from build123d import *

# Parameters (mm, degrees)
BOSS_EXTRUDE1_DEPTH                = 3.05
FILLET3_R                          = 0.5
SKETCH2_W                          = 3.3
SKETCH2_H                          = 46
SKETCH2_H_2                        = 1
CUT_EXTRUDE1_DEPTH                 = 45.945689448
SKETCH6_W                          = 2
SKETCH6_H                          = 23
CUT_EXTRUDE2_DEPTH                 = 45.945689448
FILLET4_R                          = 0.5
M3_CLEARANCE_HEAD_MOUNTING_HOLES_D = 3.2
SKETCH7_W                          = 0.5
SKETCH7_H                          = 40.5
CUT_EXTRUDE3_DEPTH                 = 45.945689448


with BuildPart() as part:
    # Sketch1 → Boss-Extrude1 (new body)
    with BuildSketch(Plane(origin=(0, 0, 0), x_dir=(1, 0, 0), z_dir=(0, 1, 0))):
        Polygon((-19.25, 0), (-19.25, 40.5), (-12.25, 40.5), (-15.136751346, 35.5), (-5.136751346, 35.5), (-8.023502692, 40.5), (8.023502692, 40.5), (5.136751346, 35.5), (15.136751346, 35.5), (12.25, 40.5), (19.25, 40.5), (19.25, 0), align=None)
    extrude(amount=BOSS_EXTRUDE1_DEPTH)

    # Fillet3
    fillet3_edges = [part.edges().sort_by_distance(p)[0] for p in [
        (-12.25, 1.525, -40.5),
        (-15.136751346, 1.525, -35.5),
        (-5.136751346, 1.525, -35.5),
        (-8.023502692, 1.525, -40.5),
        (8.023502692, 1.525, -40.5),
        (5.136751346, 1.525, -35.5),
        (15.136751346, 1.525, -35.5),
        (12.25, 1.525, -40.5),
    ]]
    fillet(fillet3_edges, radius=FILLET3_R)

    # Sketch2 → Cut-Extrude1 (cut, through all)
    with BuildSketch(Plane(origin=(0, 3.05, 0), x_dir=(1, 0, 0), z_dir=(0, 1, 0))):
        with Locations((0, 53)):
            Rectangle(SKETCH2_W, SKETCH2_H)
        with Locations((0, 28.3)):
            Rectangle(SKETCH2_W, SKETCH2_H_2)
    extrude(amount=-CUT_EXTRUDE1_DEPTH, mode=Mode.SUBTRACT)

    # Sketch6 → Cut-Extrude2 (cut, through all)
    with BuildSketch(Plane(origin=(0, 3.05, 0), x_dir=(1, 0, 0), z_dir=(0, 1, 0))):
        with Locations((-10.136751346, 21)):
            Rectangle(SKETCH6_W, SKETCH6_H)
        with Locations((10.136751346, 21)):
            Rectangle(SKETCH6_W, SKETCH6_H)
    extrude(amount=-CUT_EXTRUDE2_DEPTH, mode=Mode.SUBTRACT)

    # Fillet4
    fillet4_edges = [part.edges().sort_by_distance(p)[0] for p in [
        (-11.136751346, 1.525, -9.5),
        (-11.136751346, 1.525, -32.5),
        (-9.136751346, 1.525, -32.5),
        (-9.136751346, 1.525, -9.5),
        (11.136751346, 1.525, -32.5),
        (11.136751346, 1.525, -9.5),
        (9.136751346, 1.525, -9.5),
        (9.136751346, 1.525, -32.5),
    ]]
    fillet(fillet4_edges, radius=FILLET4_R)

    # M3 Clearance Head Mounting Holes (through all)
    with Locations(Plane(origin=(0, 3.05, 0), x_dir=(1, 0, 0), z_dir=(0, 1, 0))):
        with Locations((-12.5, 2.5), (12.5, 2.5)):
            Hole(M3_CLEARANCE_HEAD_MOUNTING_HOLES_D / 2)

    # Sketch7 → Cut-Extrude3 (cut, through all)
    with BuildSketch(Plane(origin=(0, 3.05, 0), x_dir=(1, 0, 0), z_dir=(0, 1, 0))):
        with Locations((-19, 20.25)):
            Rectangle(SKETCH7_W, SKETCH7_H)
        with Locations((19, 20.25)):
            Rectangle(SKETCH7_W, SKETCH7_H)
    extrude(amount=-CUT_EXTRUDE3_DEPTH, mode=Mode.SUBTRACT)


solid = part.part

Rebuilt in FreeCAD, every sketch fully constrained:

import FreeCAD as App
import Part
import Sketcher
from FreeCAD import Vector
Q = App.Units.Quantity


def edges_at(feature, points):
    """Names of the edges that pass closest to the given points."""
    edges = feature.Shape.Edges
    near = lambda p: min(range(len(edges)), key=lambda i: edges[i].distToShape(Part.Vertex(*p))[0])
    return sorted({f"Edge{near(p) + 1}" for p in points})

doc = App.newDocument("Part")
params = doc.addObject("Spreadsheet::Sheet", "Params")
for row, (alias, value) in enumerate([
    ("sketch1_width", "7 mm"),
    ("sketch1_width2", "10 mm"),
    ("sketch1_width3", "38.5 mm"),
    ("sketch1_height", "40.5 mm"),
    ("pad1_length", "3.05 mm"),
    ("fillet_radius", "0.5 mm"),
    ("sketch2_height", "46 mm"),
    ("sketch2_height2", "1 mm"),
    ("sketch2_width", "3.3 mm"),
    ("sketch3_width", "2 mm"),
    ("sketch3_height", "23 mm"),
    ("fillet2_radius", "0.5 mm"),
    ("sketch4_diameter", "3.2 mm"),
    ("hole_diameter", "3.2 mm"),
    ("sketch5_width", "0.5 mm"),
    ("sketch5_height", "40.5 mm"),
], start=1):
    params.set(f"A{row}", alias)
    params.set(f"B{row}", "=" + value)
    params.setAlias(f"B{row}", alias)

body = doc.addObject("PartDesign::Body", "Body")

sketch1 = doc.addObject("Sketcher::SketchObject", "Sketch")
body.addObject(sketch1)
sketch1.AttachmentSupport = (doc.XZ_Plane, [""])
sketch1.MapMode = "FlatFace"
sketch1.addGeometry(Part.LineSegment(Vector(-19, -40, 0), Vector(-19, 0, 0)), False)
sketch1.addGeometry(Part.LineSegment(Vector(-19, 0, 0), Vector(19, 0, 0)), False)
sketch1.addGeometry(Part.LineSegment(Vector(19, 0, 0), Vector(19, -40, 0)), False)
sketch1.addGeometry(Part.LineSegment(Vector(19, -40, 0), Vector(12, -40, 0)), False)
sketch1.addGeometry(Part.LineSegment(Vector(12, -40, 0), Vector(15, -36, 0)), False)
sketch1.addGeometry(Part.LineSegment(Vector(15, -36, 0), Vector(5, -36, 0)), False)
sketch1.addGeometry(Part.LineSegment(Vector(5, -36, 0), Vector(8, -40, 0)), False)
sketch1.addGeometry(Part.LineSegment(Vector(8, -40, 0), Vector(-8, -40, 0)), False)
sketch1.addGeometry(Part.LineSegment(Vector(-8, -40, 0), Vector(-5, -36, 0)), False)
sketch1.addGeometry(Part.LineSegment(Vector(-5, -36, 0), Vector(-15, -36, 0)), False)
sketch1.addGeometry(Part.LineSegment(Vector(-15, -36, 0), Vector(-12, -40, 0)), False)
sketch1.addGeometry(Part.LineSegment(Vector(-12, -40, 0), Vector(-19, -40, 0)), False)
sketch1.addConstraint(Sketcher.Constraint("Coincident", 0, 2, 1, 1))
sketch1.addConstraint(Sketcher.Constraint("Coincident", 1, 2, 2, 1))
sketch1.addConstraint(Sketcher.Constraint("Coincident", 2, 2, 3, 1))
sketch1.addConstraint(Sketcher.Constraint("Coincident", 3, 2, 4, 1))
sketch1.addConstraint(Sketcher.Constraint("Coincident", 4, 2, 5, 1))
sketch1.addConstraint(Sketcher.Constraint("Coincident", 5, 2, 6, 1))
sketch1.addConstraint(Sketcher.Constraint("Coincident", 6, 2, 7, 1))
sketch1.addConstraint(Sketcher.Constraint("Coincident", 7, 2, 8, 1))
sketch1.addConstraint(Sketcher.Constraint("Coincident", 8, 2, 9, 1))
sketch1.addConstraint(Sketcher.Constraint("Coincident", 9, 2, 10, 1))
sketch1.addConstraint(Sketcher.Constraint("Coincident", 10, 2, 11, 1))
sketch1.addConstraint(Sketcher.Constraint("Coincident", 11, 2, 0, 1))
sketch1.addConstraint(Sketcher.Constraint("Vertical", 0))
sketch1.addConstraint(Sketcher.Constraint("Horizontal", 1))
sketch1.addConstraint(Sketcher.Constraint("Vertical", 2))
sketch1.addConstraint(Sketcher.Constraint("Horizontal", 3))
sketch1.addConstraint(Sketcher.Constraint("Horizontal", 5))
sketch1.addConstraint(Sketcher.Constraint("Horizontal", 7))
sketch1.addConstraint(Sketcher.Constraint("Horizontal", 9))
sketch1.addConstraint(Sketcher.Constraint("Horizontal", 11))
sketch1.addConstraint(Sketcher.Constraint("Symmetric", 0, 2, 1, 2, -1, 1))
sketch1.addConstraint(Sketcher.Constraint("Symmetric", 5, 2, 8, 2, -2))
sketch1.addConstraint(Sketcher.Constraint("Symmetric", 3, 2, 10, 2, -2))
sketch1.addConstraint(Sketcher.Constraint("Parallel", 4, 8))
sketch1.addConstraint(Sketcher.Constraint("Parallel", 6, 10))
sketch1.addConstraint(Sketcher.Constraint("Horizontal", 3, 2, 6, 2))
sketch1.addConstraint(Sketcher.Constraint("Equal", 5, 9))
sketch1.addConstraint(Sketcher.Constraint("DistanceX", 3, 2, 3, 1, 7.0))
sketch1.addConstraint(Sketcher.Constraint("DistanceX", 5, 2, 5, 1, 10.0))
sketch1.addConstraint(Sketcher.Constraint("Angle", 4, Q("60 deg")))
sketch1.addConstraint(Sketcher.Constraint("DistanceX", 1, 1, 1, 2, 38.5))
sketch1.addConstraint(Sketcher.Constraint("DistanceY", 0, 1, 0, 2, 40.5))
sketch1.addConstraint(Sketcher.Constraint("DistanceY", 3, 2, 4, 2, 5.0))
sketch1.setExpression("Constraints[27]", "Params.sketch1_width")
sketch1.setExpression("Constraints[28]", "Params.sketch1_width2")
sketch1.setExpression("Constraints[30]", "Params.sketch1_width3")
sketch1.setExpression("Constraints[31]", "Params.sketch1_height")
pad1 = doc.addObject("PartDesign::Pad", "Pad")
body.addObject(pad1)
pad1.Profile = sketch1
pad1.setExpression("Length", "Params.pad1_length")
pad1.Reversed = True
doc.recompute()

fillet = doc.addObject("PartDesign::Fillet", "Fillet")
body.addObject(fillet)
fillet.Base = (pad1, edges_at(pad1, [
    (-12.25, 1.525, -40.5),
    (-15.137, 1.525, -35.5),
    (-5.137, 1.525, -35.5),
    (-8.024, 1.525, -40.5),
    (8.024, 1.525, -40.5),
    (5.137, 1.525, -35.5),
    (15.137, 1.525, -35.5),
    (12.25, 1.525, -40.5),
]))
fillet.setExpression("Radius", "Params.fillet_radius")

sketch2 = doc.addObject("Sketcher::SketchObject", "Sketch001")
body.addObject(sketch2)
sketch2.AttachmentSupport = (doc.XZ_Plane, [""])
sketch2.MapMode = "FlatFace"
sketch2.AttachmentOffset = App.Placement(Vector(0, 0, -3.05), App.Rotation())
sketch2.addGeometry(Part.LineSegment(Vector(-1.6, -76, 0), Vector(-1.6, -30, 0)), False)
sketch2.addGeometry(Part.LineSegment(Vector(-1.6, -30, 0), Vector(1.6, -30, 0)), False)
sketch2.addGeometry(Part.LineSegment(Vector(1.6, -30, 0), Vector(1.6, -76, 0)), False)
sketch2.addGeometry(Part.LineSegment(Vector(1.6, -76, 0), Vector(-1.6, -76, 0)), False)
sketch2.addGeometry(Part.LineSegment(Vector(-1.6, -28.8, 0), Vector(-1.6, -27.8, 0)), False)
sketch2.addGeometry(Part.LineSegment(Vector(-1.6, -27.8, 0), Vector(1.6, -27.8, 0)), False)
sketch2.addGeometry(Part.LineSegment(Vector(1.6, -27.8, 0), Vector(1.6, -28.8, 0)), False)
sketch2.addGeometry(Part.LineSegment(Vector(1.6, -28.8, 0), Vector(-1.6, -28.8, 0)), False)
sketch2.addConstraint(Sketcher.Constraint("Coincident", 0, 2, 1, 1))
sketch2.addConstraint(Sketcher.Constraint("Coincident", 1, 2, 2, 1))
sketch2.addConstraint(Sketcher.Constraint("Coincident", 2, 2, 3, 1))
sketch2.addConstraint(Sketcher.Constraint("Coincident", 3, 2, 0, 1))
sketch2.addConstraint(Sketcher.Constraint("Coincident", 4, 2, 5, 1))
sketch2.addConstraint(Sketcher.Constraint("Coincident", 5, 2, 6, 1))
sketch2.addConstraint(Sketcher.Constraint("Coincident", 6, 2, 7, 1))
sketch2.addConstraint(Sketcher.Constraint("Coincident", 7, 2, 4, 1))
sketch2.addConstraint(Sketcher.Constraint("Vertical", 0))
sketch2.addConstraint(Sketcher.Constraint("Horizontal", 1))
sketch2.addConstraint(Sketcher.Constraint("Vertical", 2))
sketch2.addConstraint(Sketcher.Constraint("Horizontal", 3))
sketch2.addConstraint(Sketcher.Constraint("Vertical", 4))
sketch2.addConstraint(Sketcher.Constraint("Horizontal", 5))
sketch2.addConstraint(Sketcher.Constraint("Vertical", 6))
sketch2.addConstraint(Sketcher.Constraint("Horizontal", 7))
sketch2.addConstraint(Sketcher.Constraint("Vertical", 3, 2, 4, 2))
sketch2.addConstraint(Sketcher.Constraint("Vertical", 2, 2, 5, 2))
sketch2.addConstraint(Sketcher.Constraint("DistanceY", 0, 1, 0, 2, 46.0))
sketch2.addConstraint(Sketcher.Constraint("DistanceY", 4, 1, 4, 2, 1.0))
sketch2.addConstraint(Sketcher.Constraint("DistanceX", 1, 1, 1, 2, 3.3))
sketch2.addConstraint(Sketcher.Constraint("DistanceY", 0, 2, -1, 1, 30.0))
sketch2.addConstraint(Sketcher.Constraint("DistanceY", 4, 2, -1, 1, 27.8))
sketch2.addConstraint(Sketcher.Constraint("DistanceX", 0, 2, -1, 1, 1.65))
sketch2.setExpression("Constraints[18]", "Params.sketch2_height")
sketch2.setExpression("Constraints[19]", "Params.sketch2_height2")
sketch2.setExpression("Constraints[20]", "Params.sketch2_width")
pocket1 = doc.addObject("PartDesign::Pocket", "Pocket")
body.addObject(pocket1)
pocket1.Profile = sketch2
pocket1.Type = "ThroughAll"
pocket1.Reversed = True

sketch3 = doc.addObject("Sketcher::SketchObject", "Sketch002")
body.addObject(sketch3)
sketch3.AttachmentSupport = (doc.XZ_Plane, [""])
sketch3.MapMode = "FlatFace"
sketch3.AttachmentOffset = App.Placement(Vector(0, 0, -3.05), App.Rotation())
sketch3.addGeometry(Part.LineSegment(Vector(-11.1, -32.5, 0), Vector(-11.1, -9.5, 0)), False)
sketch3.addGeometry(Part.LineSegment(Vector(-11.1, -9.5, 0), Vector(-9.1, -9.5, 0)), False)
sketch3.addGeometry(Part.LineSegment(Vector(-9.1, -9.5, 0), Vector(-9.1, -32.5, 0)), False)
sketch3.addGeometry(Part.LineSegment(Vector(-9.1, -32.5, 0), Vector(-11.1, -32.5, 0)), False)
sketch3.addGeometry(Part.LineSegment(Vector(9.1, -32.5, 0), Vector(9.1, -9.5, 0)), False)
sketch3.addGeometry(Part.LineSegment(Vector(9.1, -9.5, 0), Vector(11.1, -9.5, 0)), False)
sketch3.addGeometry(Part.LineSegment(Vector(11.1, -9.5, 0), Vector(11.1, -32.5, 0)), False)
sketch3.addGeometry(Part.LineSegment(Vector(11.1, -32.5, 0), Vector(9.1, -32.5, 0)), False)
sketch3.addConstraint(Sketcher.Constraint("Coincident", 0, 2, 1, 1))
sketch3.addConstraint(Sketcher.Constraint("Coincident", 1, 2, 2, 1))
sketch3.addConstraint(Sketcher.Constraint("Coincident", 2, 2, 3, 1))
sketch3.addConstraint(Sketcher.Constraint("Coincident", 3, 2, 0, 1))
sketch3.addConstraint(Sketcher.Constraint("Coincident", 4, 2, 5, 1))
sketch3.addConstraint(Sketcher.Constraint("Coincident", 5, 2, 6, 1))
sketch3.addConstraint(Sketcher.Constraint("Coincident", 6, 2, 7, 1))
sketch3.addConstraint(Sketcher.Constraint("Coincident", 7, 2, 4, 1))
sketch3.addConstraint(Sketcher.Constraint("Vertical", 0))
sketch3.addConstraint(Sketcher.Constraint("Horizontal", 1))
sketch3.addConstraint(Sketcher.Constraint("Vertical", 2))
sketch3.addConstraint(Sketcher.Constraint("Horizontal", 3))
sketch3.addConstraint(Sketcher.Constraint("Vertical", 4))
sketch3.addConstraint(Sketcher.Constraint("Horizontal", 5))
sketch3.addConstraint(Sketcher.Constraint("Vertical", 6))
sketch3.addConstraint(Sketcher.Constraint("Horizontal", 7))
sketch3.addConstraint(Sketcher.Constraint("Symmetric", 1, 2, 4, 2, -2))
sketch3.addConstraint(Sketcher.Constraint("Symmetric", 3, 2, 6, 2, -2))
sketch3.addConstraint(Sketcher.Constraint("DistanceX", 1, 1, 1, 2, 2.0))
sketch3.addConstraint(Sketcher.Constraint("DistanceY", 0, 1, 0, 2, 23.0))
sketch3.addConstraint(Sketcher.Constraint("DistanceY", 0, 2, -1, 1, 9.5))
sketch3.addConstraint(Sketcher.Constraint("DistanceX", 0, 2, -1, 1, 11.136751))
sketch3.setExpression("Constraints[18]", "Params.sketch3_width")
sketch3.setExpression("Constraints[19]", "Params.sketch3_height")
pocket2 = doc.addObject("PartDesign::Pocket", "Pocket001")
body.addObject(pocket2)
pocket2.Profile = sketch3
pocket2.Type = "ThroughAll"
pocket2.Reversed = True
doc.recompute()

fillet2 = doc.addObject("PartDesign::Fillet", "Fillet001")
body.addObject(fillet2)
fillet2.Base = (pocket2, edges_at(pocket2, [
    (-11.137, 1.525, -9.5),
    (-11.137, 1.525, -32.5),
    (-9.137, 1.525, -32.5),
    (-9.137, 1.525, -9.5),
    (11.137, 1.525, -32.5),
    (11.137, 1.525, -9.5),
    (9.137, 1.525, -9.5),
    (9.137, 1.525, -32.5),
]))
fillet2.setExpression("Radius", "Params.fillet2_radius")

sketch4 = doc.addObject("Sketcher::SketchObject", "Sketch003")
body.addObject(sketch4)
sketch4.AttachmentSupport = (doc.XZ_Plane, [""])
sketch4.MapMode = "FlatFace"
sketch4.AttachmentOffset = App.Placement(Vector(0, 0, -3.05), App.Rotation())
sketch4.addGeometry(Part.Circle(Vector(-12.5, -2.5, 0), Vector(0, 0, 1), 1.6), False)
sketch4.addGeometry(Part.Circle(Vector(12.5, -2.5, 0), Vector(0, 0, 1), 1.6), False)
sketch4.addConstraint(Sketcher.Constraint("Equal", 0, 1))
sketch4.addConstraint(Sketcher.Constraint("Symmetric", 0, 3, 1, 3, -2))
sketch4.addConstraint(Sketcher.Constraint("Diameter", 0, 3.2))
sketch4.addConstraint(Sketcher.Constraint("DistanceX", 0, 3, 1, 3, 25.0))
sketch4.addConstraint(Sketcher.Constraint("DistanceY", 0, 3, -1, 1, 2.5))
sketch4.setExpression("Constraints[2]", "Params.sketch4_diameter")
doc.recompute()
hole = doc.addObject("PartDesign::Hole", "Hole")
body.addObject(hole)
hole.Profile = sketch4
hole.ThreadType = "None"
hole.setExpression("Diameter", "Params.hole_diameter")
hole.DepthType = "ThroughAll"
hole.Reversed = True

sketch5 = doc.addObject("Sketcher::SketchObject", "Sketch004")
body.addObject(sketch5)
sketch5.AttachmentSupport = (doc.XZ_Plane, [""])
sketch5.MapMode = "FlatFace"
sketch5.AttachmentOffset = App.Placement(Vector(0, 0, -3.05), App.Rotation())
sketch5.addGeometry(Part.LineSegment(Vector(-19.2, -40.5, 0), Vector(-19.2, 0, 0)), False)
sketch5.addGeometry(Part.LineSegment(Vector(-19.2, 0, 0), Vector(-18.8, 0, 0)), False)
sketch5.addGeometry(Part.LineSegment(Vector(-18.8, 0, 0), Vector(-18.8, -40.5, 0)), False)
sketch5.addGeometry(Part.LineSegment(Vector(-18.8, -40.5, 0), Vector(-19.2, -40.5, 0)), False)
sketch5.addGeometry(Part.LineSegment(Vector(18.8, -40.5, 0), Vector(18.8, 0, 0)), False)
sketch5.addGeometry(Part.LineSegment(Vector(18.8, 0, 0), Vector(19.2, 0, 0)), False)
sketch5.addGeometry(Part.LineSegment(Vector(19.2, 0, 0), Vector(19.2, -40.5, 0)), False)
sketch5.addGeometry(Part.LineSegment(Vector(19.2, -40.5, 0), Vector(18.8, -40.5, 0)), False)
sketch5.addConstraint(Sketcher.Constraint("Coincident", 0, 2, 1, 1))
sketch5.addConstraint(Sketcher.Constraint("Coincident", 1, 2, 2, 1))
sketch5.addConstraint(Sketcher.Constraint("Coincident", 2, 2, 3, 1))
sketch5.addConstraint(Sketcher.Constraint("Coincident", 3, 2, 0, 1))
sketch5.addConstraint(Sketcher.Constraint("Coincident", 4, 2, 5, 1))
sketch5.addConstraint(Sketcher.Constraint("Coincident", 5, 2, 6, 1))
sketch5.addConstraint(Sketcher.Constraint("Coincident", 6, 2, 7, 1))
sketch5.addConstraint(Sketcher.Constraint("Coincident", 7, 2, 4, 1))
sketch5.addConstraint(Sketcher.Constraint("Vertical", 0))
sketch5.addConstraint(Sketcher.Constraint("Horizontal", 1))
sketch5.addConstraint(Sketcher.Constraint("Vertical", 2))
sketch5.addConstraint(Sketcher.Constraint("Horizontal", 3))
sketch5.addConstraint(Sketcher.Constraint("Vertical", 4))
sketch5.addConstraint(Sketcher.Constraint("Horizontal", 5))
sketch5.addConstraint(Sketcher.Constraint("Vertical", 6))
sketch5.addConstraint(Sketcher.Constraint("Horizontal", 7))
sketch5.addConstraint(Sketcher.Constraint("Symmetric", 1, 2, 4, 2, -1, 1))
sketch5.addConstraint(Sketcher.Constraint("Symmetric", 0, 2, 5, 2, -2))
sketch5.addConstraint(Sketcher.Constraint("Horizontal", 3, 2, 6, 2))
sketch5.addConstraint(Sketcher.Constraint("DistanceX", 1, 1, 1, 2, 0.5))
sketch5.addConstraint(Sketcher.Constraint("DistanceY", 0, 1, 0, 2, 40.5))
sketch5.addConstraint(Sketcher.Constraint("DistanceX", 0, 2, 4, 2, 38.0))
sketch5.setExpression("Constraints[19]", "Params.sketch5_width")
sketch5.setExpression("Constraints[20]", "Params.sketch5_height")
pocket3 = doc.addObject("PartDesign::Pocket", "Pocket002")
body.addObject(pocket3)
pocket3.Profile = sketch5
pocket3.Type = "ThroughAll"
pocket3.Reversed = True

doc.recompute()
